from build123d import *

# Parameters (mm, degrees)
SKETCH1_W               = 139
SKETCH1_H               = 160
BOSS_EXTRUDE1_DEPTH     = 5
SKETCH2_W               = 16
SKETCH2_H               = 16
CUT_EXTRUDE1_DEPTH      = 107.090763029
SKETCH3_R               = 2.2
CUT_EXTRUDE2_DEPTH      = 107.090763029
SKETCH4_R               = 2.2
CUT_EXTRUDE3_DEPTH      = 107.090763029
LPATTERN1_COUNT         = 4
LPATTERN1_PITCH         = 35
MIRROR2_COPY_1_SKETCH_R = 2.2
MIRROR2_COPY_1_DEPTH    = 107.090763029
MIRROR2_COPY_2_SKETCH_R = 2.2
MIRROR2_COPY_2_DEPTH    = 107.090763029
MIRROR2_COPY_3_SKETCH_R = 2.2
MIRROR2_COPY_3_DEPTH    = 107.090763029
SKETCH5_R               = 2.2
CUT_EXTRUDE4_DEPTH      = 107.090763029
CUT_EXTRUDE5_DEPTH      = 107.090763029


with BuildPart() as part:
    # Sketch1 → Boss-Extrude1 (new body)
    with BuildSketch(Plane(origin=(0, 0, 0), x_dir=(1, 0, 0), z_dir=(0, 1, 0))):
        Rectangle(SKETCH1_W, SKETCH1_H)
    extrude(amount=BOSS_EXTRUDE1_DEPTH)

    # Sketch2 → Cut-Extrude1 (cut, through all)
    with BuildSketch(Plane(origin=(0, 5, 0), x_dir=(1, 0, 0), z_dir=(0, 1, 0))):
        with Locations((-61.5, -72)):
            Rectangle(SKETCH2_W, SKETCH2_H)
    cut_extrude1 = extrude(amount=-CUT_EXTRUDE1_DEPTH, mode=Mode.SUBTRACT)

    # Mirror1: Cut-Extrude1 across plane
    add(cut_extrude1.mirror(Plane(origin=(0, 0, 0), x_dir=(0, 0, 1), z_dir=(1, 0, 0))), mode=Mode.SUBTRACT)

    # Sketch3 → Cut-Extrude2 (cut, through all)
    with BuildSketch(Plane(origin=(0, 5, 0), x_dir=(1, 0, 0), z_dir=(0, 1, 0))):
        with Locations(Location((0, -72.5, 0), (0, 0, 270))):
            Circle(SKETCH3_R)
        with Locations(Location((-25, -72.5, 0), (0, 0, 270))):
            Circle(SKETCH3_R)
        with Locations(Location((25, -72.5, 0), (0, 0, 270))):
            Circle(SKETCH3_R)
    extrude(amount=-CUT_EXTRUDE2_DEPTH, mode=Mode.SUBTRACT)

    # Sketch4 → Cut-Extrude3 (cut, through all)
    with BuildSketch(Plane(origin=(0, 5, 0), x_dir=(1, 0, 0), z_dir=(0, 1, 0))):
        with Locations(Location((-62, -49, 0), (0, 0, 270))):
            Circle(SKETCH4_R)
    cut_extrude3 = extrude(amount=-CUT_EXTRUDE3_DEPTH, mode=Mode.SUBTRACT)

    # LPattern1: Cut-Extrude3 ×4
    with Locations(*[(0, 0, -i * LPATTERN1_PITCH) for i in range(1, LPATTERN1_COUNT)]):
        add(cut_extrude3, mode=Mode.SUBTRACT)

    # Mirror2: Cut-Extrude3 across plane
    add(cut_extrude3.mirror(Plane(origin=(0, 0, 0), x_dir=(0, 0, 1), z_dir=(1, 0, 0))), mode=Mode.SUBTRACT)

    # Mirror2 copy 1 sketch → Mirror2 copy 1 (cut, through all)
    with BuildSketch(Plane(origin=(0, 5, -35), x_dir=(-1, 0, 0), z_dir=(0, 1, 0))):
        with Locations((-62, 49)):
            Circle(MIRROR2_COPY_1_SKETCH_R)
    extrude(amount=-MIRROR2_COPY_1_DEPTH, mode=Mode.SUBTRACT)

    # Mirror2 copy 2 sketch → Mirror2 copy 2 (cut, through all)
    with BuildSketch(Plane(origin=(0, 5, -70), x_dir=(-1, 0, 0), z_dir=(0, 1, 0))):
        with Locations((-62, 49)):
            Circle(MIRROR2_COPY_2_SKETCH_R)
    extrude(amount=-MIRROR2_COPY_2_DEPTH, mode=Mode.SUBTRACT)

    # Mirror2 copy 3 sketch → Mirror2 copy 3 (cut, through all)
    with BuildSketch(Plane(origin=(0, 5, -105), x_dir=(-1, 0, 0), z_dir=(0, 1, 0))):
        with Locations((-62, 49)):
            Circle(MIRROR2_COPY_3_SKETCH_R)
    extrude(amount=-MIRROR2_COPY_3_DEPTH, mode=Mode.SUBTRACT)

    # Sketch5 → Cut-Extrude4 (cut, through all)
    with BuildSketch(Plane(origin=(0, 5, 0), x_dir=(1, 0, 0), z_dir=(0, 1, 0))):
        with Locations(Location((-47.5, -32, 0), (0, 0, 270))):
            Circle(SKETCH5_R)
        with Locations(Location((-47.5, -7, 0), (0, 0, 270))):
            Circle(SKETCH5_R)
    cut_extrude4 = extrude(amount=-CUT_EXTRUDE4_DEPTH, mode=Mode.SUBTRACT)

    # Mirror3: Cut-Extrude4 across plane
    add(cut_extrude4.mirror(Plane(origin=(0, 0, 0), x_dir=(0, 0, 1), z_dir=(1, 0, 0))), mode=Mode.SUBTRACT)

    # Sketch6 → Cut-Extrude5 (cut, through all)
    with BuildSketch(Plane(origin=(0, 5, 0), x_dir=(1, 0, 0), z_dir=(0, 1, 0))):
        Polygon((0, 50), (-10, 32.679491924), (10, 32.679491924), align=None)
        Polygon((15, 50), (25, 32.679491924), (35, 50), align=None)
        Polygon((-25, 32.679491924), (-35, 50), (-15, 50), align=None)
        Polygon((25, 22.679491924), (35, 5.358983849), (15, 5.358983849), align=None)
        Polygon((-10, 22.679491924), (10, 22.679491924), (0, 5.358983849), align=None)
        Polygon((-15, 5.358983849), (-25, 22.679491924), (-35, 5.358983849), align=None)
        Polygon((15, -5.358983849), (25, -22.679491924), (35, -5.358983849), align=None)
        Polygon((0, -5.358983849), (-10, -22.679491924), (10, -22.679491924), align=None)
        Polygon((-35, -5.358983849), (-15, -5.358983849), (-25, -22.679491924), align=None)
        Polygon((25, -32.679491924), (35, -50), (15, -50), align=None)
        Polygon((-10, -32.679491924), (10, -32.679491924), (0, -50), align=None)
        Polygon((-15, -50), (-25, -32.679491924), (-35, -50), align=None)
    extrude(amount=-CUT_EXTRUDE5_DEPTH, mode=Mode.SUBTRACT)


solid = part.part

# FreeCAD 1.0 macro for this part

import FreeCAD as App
import Part
import Sketcher

V = App.Vector
Q = App.Units.Quantity


def add_polygon(sketch, points):
    """Adds a closed chain of lines whose ends are joined by coincident constraints."""
    first, n = sketch.GeometryCount, len(points)
    for a, b in zip(points, points[1:] + points[:1]):
        sketch.addGeometry(Part.LineSegment(App.Vector(*a, 0), App.Vector(*b, 0)), False)
    for i in range(n):
        sketch.addConstraint(Sketcher.Constraint("Coincident", first + i, 2, first + (i + 1) % n, 1))

doc = App.newDocument("Part")
body = doc.addObject("PartDesign::Body", "Body")

# Sketch on XZ plane
sketch1 = body.newObject("Sketcher::SketchObject", "Sketch")
sketch1.AttachmentSupport = (doc.getObject("XZ_Plane"), [""])
sketch1.MapMode = "FlatFace"
add_polygon(sketch1, [(-70, -80), (-70, 80), (70, 80), (70, -80)])  # lines 0-3
sketch1.addConstraint(Sketcher.Constraint("Vertical", 0))
sketch1.addConstraint(Sketcher.Constraint("Horizontal", 1))
sketch1.addConstraint(Sketcher.Constraint("Vertical", 2))
sketch1.addConstraint(Sketcher.Constraint("Horizontal", 3))
sketch1.addConstraint(Sketcher.Constraint("Symmetric", 0, 2, 2, 2, -1, 1))
sketch1.addConstraint(Sketcher.Constraint("DistanceX", 1, 1, 1, 2, Q("139 mm")))
sketch1.addConstraint(Sketcher.Constraint("DistanceY", 0, 1, 0, 2, Q("160 mm")))
pad1 = body.newObject("PartDesign::Pad", "Pad")
pad1.Profile = sketch1
pad1.Length = 5
pad1.Reversed = True

# Sketch on XZ plane
sketch2 = body.newObject("Sketcher::SketchObject", "Sketch001")
sketch2.AttachmentSupport = (doc.getObject("XZ_Plane"), [""])
sketch2.MapMode = "FlatFace"
sketch2.AttachmentOffset = App.Placement(V(0, 0, -5), App.Rotation())
add_polygon(sketch2, [(-70, 64), (-70, 80), (-54, 80), (-54, 64)])  # lines 0-3
sketch2.addConstraint(Sketcher.Constraint("Vertical", 0))
sketch2.addConstraint(Sketcher.Constraint("Horizontal", 1))
sketch2.addConstraint(Sketcher.Constraint("Vertical", 2))
sketch2.addConstraint(Sketcher.Constraint("Horizontal", 3))
sketch2.addConstraint(Sketcher.Constraint("Equal", 3, 0))
sketch2.addConstraint(Sketcher.Constraint("DistanceX", 1, 1, 1, 2, Q("16 mm")))
sketch2.addConstraint(Sketcher.Constraint("DistanceY", -1, 1, 0, 2, Q("80 mm")))
sketch2.addConstraint(Sketcher.Constraint("DistanceX", 0, 2, -1, 1, Q("69.5 mm")))
pocket1 = body.newObject("PartDesign::Pocket", "Pocket")
pocket1.Profile = sketch2
pocket1.Type = "ThroughAll"
pocket1.Reversed = True
doc.recompute()

mirrored = body.newObject("PartDesign::Mirrored", "Mirrored")
mirrored.Originals = [pocket1]
mirrored.MirrorPlane = (doc.getObject("YZ_Plane"), [""])
body.Tip = mirrored

# Sketch on XZ plane
sketch3 = body.newObject("Sketcher::SketchObject", "Sketch002")
sketch3.AttachmentSupport = (doc.getObject("XZ_Plane"), [""])
sketch3.MapMode = "FlatFace"
sketch3.AttachmentOffset = App.Placement(V(0, 0, -5), App.Rotation())
sketch3.addGeometry(Part.Circle(V(0, 72.5, 0), V(0, 0, 1), 2.2), False)
sketch3.addGeometry(Part.Circle(V(-25, 72.5, 0), V(0, 0, 1), 2.2), False)
sketch3.addGeometry(Part.Circle(V(25, 72.5, 0), V(0, 0, 1), 2.2), False)
sketch3.addConstraint(Sketcher.Constraint("Equal", 0, 1))
sketch3.addConstraint(Sketcher.Constraint("Equal", 1, 2))
sketch3.addConstraint(Sketcher.Constraint("Symmetric", 1, 3, 2, 3, -2))
sketch3.addConstraint(Sketcher.Constraint("PointOnObject", 0, 3, -2))
sketch3.addConstraint(Sketcher.Constraint("Horizontal", 0, 3, 1, 3))
sketch3.addConstraint(Sketcher.Constraint("Diameter", 0, Q("4.4 mm")))
sketch3.addConstraint(Sketcher.Constraint("DistanceX", 1, 3, -1, 1, Q("25 mm")))
sketch3.addConstraint(Sketcher.Constraint("DistanceY", -1, 1, 0, 3, Q("72.5 mm")))
pocket2 = body.newObject("PartDesign::Pocket", "Pocket001")
pocket2.Profile = sketch3
pocket2.Type = "ThroughAll"
pocket2.Reversed = True

# Sketch on XZ plane
sketch4 = body.newObject("Sketcher::SketchObject", "Sketch003")
sketch4.AttachmentSupport = (doc.getObject("XZ_Plane"), [""])
sketch4.MapMode = "FlatFace"
sketch4.AttachmentOffset = App.Placement(V(0, 0, -5), App.Rotation())
sketch4.addGeometry(Part.Circle(V(-62, 49, 0), V(0, 0, 1), 2.2), False)
sketch4.addConstraint(Sketcher.Constraint("Diameter", 0, Q("4.4 mm")))
sketch4.addConstraint(Sketcher.Constraint("DistanceX", 0, 3, -1, 1, Q("62 mm")))
sketch4.addConstraint(Sketcher.Constraint("DistanceY", -1, 1, 0, 3, Q("49 mm")))
pocket3 = body.newObject("PartDesign::Pocket", "Pocket002")
pocket3.Profile = sketch4
pocket3.Type = "ThroughAll"
pocket3.Reversed = True
doc.recompute()

linearpattern = body.newObject("PartDesign::LinearPattern", "LinearPattern")
linearpattern.Originals = [pocket3]
linearpattern.Direction = (doc.getObject("Z_Axis"), [""])
linearpattern.Mode = "offset"
linearpattern.Offset = 35
linearpattern.Occurrences = 4
linearpattern.Reversed = True
body.Tip = linearpattern
doc.recompute()

mirrored2 = body.newObject("PartDesign::Mirrored", "Mirrored001")
mirrored2.Originals = [pocket3]
mirrored2.MirrorPlane = (doc.getObject("YZ_Plane"), [""])
body.Tip = mirrored2

# Sketch on XZ plane
sketch5 = body.newObject("Sketcher::SketchObject", "Sketch004")
sketch5.AttachmentSupport = (doc.getObject("XZ_Plane"), [""])
sketch5.MapMode = "FlatFace"
sketch5.AttachmentOffset = App.Placement(V(0, 0, -5), App.Rotation())
sketch5.addGeometry(Part.Circle(V(62, 14, 0), V(0, 0, 1), 2.2), False)
sketch5.addConstraint(Sketcher.Constraint("Diameter", 0, Q("4.4 mm")))
sketch5.addConstraint(Sketcher.Constraint("DistanceX", -1, 1, 0, 3, Q("62 mm")))
sketch5.addConstraint(Sketcher.Constraint("DistanceY", -1, 1, 0, 3, Q("14 mm")))
pocket4 = body.newObject("PartDesign::Pocket", "Pocket003")
pocket4.Profile = sketch5
pocket4.Type = "ThroughAll"
pocket4.Reversed = True

# Sketch on XZ plane
sketch6 = body.newObject("Sketcher::SketchObject", "Sketch005")
sketch6.AttachmentSupport = (doc.getObject("XZ_Plane"), [""])
sketch6.MapMode = "FlatFace"
sketch6.AttachmentOffset = App.Placement(V(0, 0, -5), App.Rotation())
sketch6.addGeometry(Part.Circle(V(62, -21, 0), V(0, 0, 1), 2.2), False)
sketch6.addConstraint(Sketcher.Constraint("Diameter", 0, Q("4.4 mm")))
sketch6.addConstraint(Sketcher.Constraint("DistanceX", -1, 1, 0, 3, Q("62 mm")))
sketch6.addConstraint(Sketcher.Constraint("DistanceY", 0, 3, -1, 1, Q("21 mm")))
pocket5 = body.newObject("PartDesign::Pocket", "Pocket004")
pocket5.Profile = sketch6
pocket5.Type = "ThroughAll"
pocket5.Reversed = True

# Sketch on XZ plane
sketch7 = body.newObject("Sketcher::SketchObject", "Sketch006")
sketch7.AttachmentSupport = (doc.getObject("XZ_Plane"), [""])
sketch7.MapMode = "FlatFace"
sketch7.AttachmentOffset = App.Placement(V(0, 0, -5), App.Rotation())
sketch7.addGeometry(Part.Circle(V(62, -56, 0), V(0, 0, 1), 2.2), False)
sketch7.addConstraint(Sketcher.Constraint("Diameter", 0, Q("4.4 mm")))
sketch7.addConstraint(Sketcher.Constraint("DistanceX", -1, 1, 0, 3, Q("62 mm")))
sketch7.addConstraint(Sketcher.Constraint("DistanceY", 0, 3, -1, 1, Q("56 mm")))
pocket6 = body.newObject("PartDesign::Pocket", "Pocket005")
pocket6.Profile = sketch7
pocket6.Type = "ThroughAll"
pocket6.Reversed = True

# Sketch on XZ plane
sketch8 = body.newObject("Sketcher::SketchObject", "Sketch007")
sketch8.AttachmentSupport = (doc.getObject("XZ_Plane"), [""])
sketch8.MapMode = "FlatFace"
sketch8.AttachmentOffset = App.Placement(V(0, 0, -5), App.Rotation())
sketch8.addGeometry(Part.Circle(V(-47.5, 32, 0), V(0, 0, 1), 2.2), False)
sketch8.addGeometry(Part.Circle(V(-47.5, 7, 0), V(0, 0, 1), 2.2), False)
sketch8.addConstraint(Sketcher.Constraint("Equal", 0, 1))
sketch8.addConstraint(Sketcher.Constraint("Vertical", 0, 3, 1, 3))
sketch8.addConstraint(Sketcher.Constraint("Diameter", 0, Q("4.4 mm")))
sketch8.addConstraint(Sketcher.Constraint("DistanceY", -1, 1, 0, 3, Q("32 mm")))
sketch8.addConstraint(Sketcher.Constraint("DistanceY", -1, 1, 1, 3, Q("7 mm")))
sketch8.addConstraint(Sketcher.Constraint("DistanceX", 0, 3, -1, 1, Q("47.5 mm")))
pocket7 = body.newObject("PartDesign::Pocket", "Pocket006")
pocket7.Profile = sketch8
pocket7.Type = "ThroughAll"
pocket7.Reversed = True
doc.recompute()

mirrored3 = body.newObject("PartDesign::Mirrored", "Mirrored002")
mirrored3.Originals = [pocket7]
mirrored3.MirrorPlane = (doc.getObject("YZ_Plane"), [""])
body.Tip = mirrored3

# Sketch on XZ plane
sketch9 = body.newObject("Sketcher::SketchObject", "Sketch008")
sketch9.AttachmentSupport = (doc.getObject("XZ_Plane"), [""])
sketch9.MapMode = "FlatFace"
sketch9.AttachmentOffset = App.Placement(V(0, 0, -5), App.Rotation())
add_polygon(sketch9, [(0, -50), (-10, -33), (10, -33)])  # lines 0-2
add_polygon(sketch9, [(15, -50), (25, -33), (35, -50)])  # lines 3-5
add_polygon(sketch9, [(-35, -50), (-25, -33), (-15, -50)])  # lines 6-8
add_polygon(sketch9, [(35, -5), (25, -23), (15, -5)])  # lines 9-11
add_polygon(sketch9, [(10, -23), (-10, -23), (0, -5)])  # lines 12-14
add_polygon(sketch9, [(-15, -5), (-25, -23), (-35, -5)])  # lines 15-17
add_polygon(sketch9, [(15, 5), (25, 23), (35, 5)])  # lines 18-20
add_polygon(sketch9, [(0, 5), (-10, 23), (10, 23)])  # lines 21-23
add_polygon(sketch9, [(-15, 5), (-35, 5), (-25, 23)])  # lines 24-26
add_polygon(sketch9, [(35, 50), (25, 33), (15, 50)])  # lines 27-29
add_polygon(sketch9, [(10, 33), (-10, 33), (0, 50)])  # lines 30-32
add_polygon(sketch9, [(-15, 50), (-25, 33), (-35, 50)])  # lines 33-35
sketch9.addConstraint(Sketcher.Constraint("Horizontal", 1))
sketch9.addConstraint(Sketcher.Constraint("Horizontal", 5))
sketch9.addConstraint(Sketcher.Constraint("Horizontal", 8))
sketch9.addConstraint(Sketcher.Constraint("Horizontal", 11))
sketch9.addConstraint(Sketcher.Constraint("Horizontal", 12))
sketch9.addConstraint(Sketcher.Constraint("Horizontal", 17))
sketch9.addConstraint(Sketcher.Constraint("Horizontal", 20))
sketch9.addConstraint(Sketcher.Constraint("Horizontal", 22))
sketch9.addConstraint(Sketcher.Constraint("Horizontal", 24))
sketch9.addConstraint(Sketcher.Constraint("Horizontal", 29))
sketch9.addConstraint(Sketcher.Constraint("Horizontal", 30))
sketch9.addConstraint(Sketcher.Constraint("Horizontal", 35))
sketch9.addConstraint(Sketcher.Constraint("Symmetric", 15, 2, 18, 2, -1, 1))
sketch9.addConstraint(Sketcher.Constraint("Symmetric", 16, 2, 19, 2, -1, 1))
sketch9.addConstraint(Sketcher.Constraint("Symmetric", 14, 2, 21, 2, -1, 1))
sketch9.addConstraint(Sketcher.Constraint("Symmetric", 13, 2, 23, 2, -1, 1))
sketch9.addConstraint(Sketcher.Constraint("Symmetric", 11, 2, 24, 2, -1, 1))
sketch9.addConstraint(Sketcher.Constraint("Symmetric", 9, 2, 25, 2, -1, 1))
sketch9.addConstraint(Sketcher.Constraint("Symmetric", 6, 2, 27, 2, -1, 1))
sketch9.addConstraint(Sketcher.Constraint("Symmetric", 7, 2, 28, 2, -1, 1))
sketch9.addConstraint(Sketcher.Constraint("Symmetric", 1, 2, 30, 2, -1, 1))
sketch9.addConstraint(Sketcher.Constraint("Symmetric", 2, 2, 31, 2, -1, 1))
sketch9.addConstraint(Sketcher.Constraint("Symmetric", 3, 2, 33, 2, -1, 1))
sketch9.addConstraint(Sketcher.Constraint("Symmetric", 4, 2, 34, 2, -1, 1))
sketch9.addConstraint(Sketcher.Constraint("Symmetric", 3, 2, 6, 2, -2))
sketch9.addConstraint(Sketcher.Constraint("Symmetric", 5, 2, 7, 2, -2))
sketch9.addConstraint(Sketcher.Constraint("Symmetric", 9, 2, 15, 2, -2))
sketch9.addConstraint(Sketcher.Constraint("Symmetric", 11, 2, 16, 2, -2))
sketch9.addConstraint(Sketcher.Constraint("PointOnObject", 2, 2, -2))
sketch9.addConstraint(Sketcher.Constraint("PointOnObject", 13, 2, -2))
sketch9.addConstraint(Sketcher.Constraint("Parallel", 2, 3))
sketch9.addConstraint(Sketcher.Constraint("Parallel", 0, 4))
sketch9.addConstraint(Sketcher.Constraint("Parallel", 3, 6))
sketch9.addConstraint(Sketcher.Constraint("Parallel", 4, 7))
sketch9.addConstraint(Sketcher.Constraint("Parallel", 6, 9))
sketch9.addConstraint(Sketcher.Constraint("Parallel", 7, 10))
sketch9.addConstraint(Sketcher.Constraint("Parallel", 9, 13))
sketch9.addConstraint(Sketcher.Constraint("Parallel", 10, 14))
sketch9.addConstraint(Sketcher.Constraint("Parallel", 13, 15))
sketch9.addConstraint(Sketcher.Constraint("Parallel", 15, 18))
sketch9.addConstraint(Sketcher.Constraint("Parallel", 18, 23))
sketch9.addConstraint(Sketcher.Constraint("Parallel", 21, 26))
sketch9.addConstraint(Sketcher.Constraint("Parallel", 25, 27))
sketch9.addConstraint(Sketcher.Constraint("Parallel", 28, 32))
sketch9.addConstraint(Sketcher.Constraint("Parallel", 31, 33))
sketch9.addConstraint(Sketcher.Constraint("Horizontal", 1, 2, 3, 2))
sketch9.addConstraint(Sketcher.Constraint("Horizontal", 2, 2, 4, 2))
sketch9.addConstraint(Sketcher.Constraint("Horizontal", 9, 2, 12, 2))
sketch9.addConstraint(Sketcher.Constraint("Horizontal", 11, 2, 13, 2))
sketch9.addConstraint(Sketcher.Constraint("Vertical", 3, 2, 9, 2))
sketch9.addConstraint(Sketcher.Constraint("Vertical", 5, 2, 10, 2))
sketch9.addConstraint(Sketcher.Constraint("DistanceX", 1, 1, 1, 2, Q("20 mm")))
sketch9.addConstraint(Sketcher.Constraint("Angle", 0, Q("120 deg")))
sketch9.addConstraint(Sketcher.Constraint("DistanceY", 2, 2, -1, 1, Q("50 mm")))
sketch9.addConstraint(Sketcher.Constraint("DistanceX", -1, 1, 3, 2, Q("25 mm")))
sketch9.addConstraint(Sketcher.Constraint("DistanceY", 3, 2, 9, 2, Q("10 mm")))
pocket8 = body.newObject("PartDesign::Pocket", "Pocket007")
pocket8.Profile = sketch9
pocket8.Type = "ThroughAll"
pocket8.Reversed = True

doc.recompute()
